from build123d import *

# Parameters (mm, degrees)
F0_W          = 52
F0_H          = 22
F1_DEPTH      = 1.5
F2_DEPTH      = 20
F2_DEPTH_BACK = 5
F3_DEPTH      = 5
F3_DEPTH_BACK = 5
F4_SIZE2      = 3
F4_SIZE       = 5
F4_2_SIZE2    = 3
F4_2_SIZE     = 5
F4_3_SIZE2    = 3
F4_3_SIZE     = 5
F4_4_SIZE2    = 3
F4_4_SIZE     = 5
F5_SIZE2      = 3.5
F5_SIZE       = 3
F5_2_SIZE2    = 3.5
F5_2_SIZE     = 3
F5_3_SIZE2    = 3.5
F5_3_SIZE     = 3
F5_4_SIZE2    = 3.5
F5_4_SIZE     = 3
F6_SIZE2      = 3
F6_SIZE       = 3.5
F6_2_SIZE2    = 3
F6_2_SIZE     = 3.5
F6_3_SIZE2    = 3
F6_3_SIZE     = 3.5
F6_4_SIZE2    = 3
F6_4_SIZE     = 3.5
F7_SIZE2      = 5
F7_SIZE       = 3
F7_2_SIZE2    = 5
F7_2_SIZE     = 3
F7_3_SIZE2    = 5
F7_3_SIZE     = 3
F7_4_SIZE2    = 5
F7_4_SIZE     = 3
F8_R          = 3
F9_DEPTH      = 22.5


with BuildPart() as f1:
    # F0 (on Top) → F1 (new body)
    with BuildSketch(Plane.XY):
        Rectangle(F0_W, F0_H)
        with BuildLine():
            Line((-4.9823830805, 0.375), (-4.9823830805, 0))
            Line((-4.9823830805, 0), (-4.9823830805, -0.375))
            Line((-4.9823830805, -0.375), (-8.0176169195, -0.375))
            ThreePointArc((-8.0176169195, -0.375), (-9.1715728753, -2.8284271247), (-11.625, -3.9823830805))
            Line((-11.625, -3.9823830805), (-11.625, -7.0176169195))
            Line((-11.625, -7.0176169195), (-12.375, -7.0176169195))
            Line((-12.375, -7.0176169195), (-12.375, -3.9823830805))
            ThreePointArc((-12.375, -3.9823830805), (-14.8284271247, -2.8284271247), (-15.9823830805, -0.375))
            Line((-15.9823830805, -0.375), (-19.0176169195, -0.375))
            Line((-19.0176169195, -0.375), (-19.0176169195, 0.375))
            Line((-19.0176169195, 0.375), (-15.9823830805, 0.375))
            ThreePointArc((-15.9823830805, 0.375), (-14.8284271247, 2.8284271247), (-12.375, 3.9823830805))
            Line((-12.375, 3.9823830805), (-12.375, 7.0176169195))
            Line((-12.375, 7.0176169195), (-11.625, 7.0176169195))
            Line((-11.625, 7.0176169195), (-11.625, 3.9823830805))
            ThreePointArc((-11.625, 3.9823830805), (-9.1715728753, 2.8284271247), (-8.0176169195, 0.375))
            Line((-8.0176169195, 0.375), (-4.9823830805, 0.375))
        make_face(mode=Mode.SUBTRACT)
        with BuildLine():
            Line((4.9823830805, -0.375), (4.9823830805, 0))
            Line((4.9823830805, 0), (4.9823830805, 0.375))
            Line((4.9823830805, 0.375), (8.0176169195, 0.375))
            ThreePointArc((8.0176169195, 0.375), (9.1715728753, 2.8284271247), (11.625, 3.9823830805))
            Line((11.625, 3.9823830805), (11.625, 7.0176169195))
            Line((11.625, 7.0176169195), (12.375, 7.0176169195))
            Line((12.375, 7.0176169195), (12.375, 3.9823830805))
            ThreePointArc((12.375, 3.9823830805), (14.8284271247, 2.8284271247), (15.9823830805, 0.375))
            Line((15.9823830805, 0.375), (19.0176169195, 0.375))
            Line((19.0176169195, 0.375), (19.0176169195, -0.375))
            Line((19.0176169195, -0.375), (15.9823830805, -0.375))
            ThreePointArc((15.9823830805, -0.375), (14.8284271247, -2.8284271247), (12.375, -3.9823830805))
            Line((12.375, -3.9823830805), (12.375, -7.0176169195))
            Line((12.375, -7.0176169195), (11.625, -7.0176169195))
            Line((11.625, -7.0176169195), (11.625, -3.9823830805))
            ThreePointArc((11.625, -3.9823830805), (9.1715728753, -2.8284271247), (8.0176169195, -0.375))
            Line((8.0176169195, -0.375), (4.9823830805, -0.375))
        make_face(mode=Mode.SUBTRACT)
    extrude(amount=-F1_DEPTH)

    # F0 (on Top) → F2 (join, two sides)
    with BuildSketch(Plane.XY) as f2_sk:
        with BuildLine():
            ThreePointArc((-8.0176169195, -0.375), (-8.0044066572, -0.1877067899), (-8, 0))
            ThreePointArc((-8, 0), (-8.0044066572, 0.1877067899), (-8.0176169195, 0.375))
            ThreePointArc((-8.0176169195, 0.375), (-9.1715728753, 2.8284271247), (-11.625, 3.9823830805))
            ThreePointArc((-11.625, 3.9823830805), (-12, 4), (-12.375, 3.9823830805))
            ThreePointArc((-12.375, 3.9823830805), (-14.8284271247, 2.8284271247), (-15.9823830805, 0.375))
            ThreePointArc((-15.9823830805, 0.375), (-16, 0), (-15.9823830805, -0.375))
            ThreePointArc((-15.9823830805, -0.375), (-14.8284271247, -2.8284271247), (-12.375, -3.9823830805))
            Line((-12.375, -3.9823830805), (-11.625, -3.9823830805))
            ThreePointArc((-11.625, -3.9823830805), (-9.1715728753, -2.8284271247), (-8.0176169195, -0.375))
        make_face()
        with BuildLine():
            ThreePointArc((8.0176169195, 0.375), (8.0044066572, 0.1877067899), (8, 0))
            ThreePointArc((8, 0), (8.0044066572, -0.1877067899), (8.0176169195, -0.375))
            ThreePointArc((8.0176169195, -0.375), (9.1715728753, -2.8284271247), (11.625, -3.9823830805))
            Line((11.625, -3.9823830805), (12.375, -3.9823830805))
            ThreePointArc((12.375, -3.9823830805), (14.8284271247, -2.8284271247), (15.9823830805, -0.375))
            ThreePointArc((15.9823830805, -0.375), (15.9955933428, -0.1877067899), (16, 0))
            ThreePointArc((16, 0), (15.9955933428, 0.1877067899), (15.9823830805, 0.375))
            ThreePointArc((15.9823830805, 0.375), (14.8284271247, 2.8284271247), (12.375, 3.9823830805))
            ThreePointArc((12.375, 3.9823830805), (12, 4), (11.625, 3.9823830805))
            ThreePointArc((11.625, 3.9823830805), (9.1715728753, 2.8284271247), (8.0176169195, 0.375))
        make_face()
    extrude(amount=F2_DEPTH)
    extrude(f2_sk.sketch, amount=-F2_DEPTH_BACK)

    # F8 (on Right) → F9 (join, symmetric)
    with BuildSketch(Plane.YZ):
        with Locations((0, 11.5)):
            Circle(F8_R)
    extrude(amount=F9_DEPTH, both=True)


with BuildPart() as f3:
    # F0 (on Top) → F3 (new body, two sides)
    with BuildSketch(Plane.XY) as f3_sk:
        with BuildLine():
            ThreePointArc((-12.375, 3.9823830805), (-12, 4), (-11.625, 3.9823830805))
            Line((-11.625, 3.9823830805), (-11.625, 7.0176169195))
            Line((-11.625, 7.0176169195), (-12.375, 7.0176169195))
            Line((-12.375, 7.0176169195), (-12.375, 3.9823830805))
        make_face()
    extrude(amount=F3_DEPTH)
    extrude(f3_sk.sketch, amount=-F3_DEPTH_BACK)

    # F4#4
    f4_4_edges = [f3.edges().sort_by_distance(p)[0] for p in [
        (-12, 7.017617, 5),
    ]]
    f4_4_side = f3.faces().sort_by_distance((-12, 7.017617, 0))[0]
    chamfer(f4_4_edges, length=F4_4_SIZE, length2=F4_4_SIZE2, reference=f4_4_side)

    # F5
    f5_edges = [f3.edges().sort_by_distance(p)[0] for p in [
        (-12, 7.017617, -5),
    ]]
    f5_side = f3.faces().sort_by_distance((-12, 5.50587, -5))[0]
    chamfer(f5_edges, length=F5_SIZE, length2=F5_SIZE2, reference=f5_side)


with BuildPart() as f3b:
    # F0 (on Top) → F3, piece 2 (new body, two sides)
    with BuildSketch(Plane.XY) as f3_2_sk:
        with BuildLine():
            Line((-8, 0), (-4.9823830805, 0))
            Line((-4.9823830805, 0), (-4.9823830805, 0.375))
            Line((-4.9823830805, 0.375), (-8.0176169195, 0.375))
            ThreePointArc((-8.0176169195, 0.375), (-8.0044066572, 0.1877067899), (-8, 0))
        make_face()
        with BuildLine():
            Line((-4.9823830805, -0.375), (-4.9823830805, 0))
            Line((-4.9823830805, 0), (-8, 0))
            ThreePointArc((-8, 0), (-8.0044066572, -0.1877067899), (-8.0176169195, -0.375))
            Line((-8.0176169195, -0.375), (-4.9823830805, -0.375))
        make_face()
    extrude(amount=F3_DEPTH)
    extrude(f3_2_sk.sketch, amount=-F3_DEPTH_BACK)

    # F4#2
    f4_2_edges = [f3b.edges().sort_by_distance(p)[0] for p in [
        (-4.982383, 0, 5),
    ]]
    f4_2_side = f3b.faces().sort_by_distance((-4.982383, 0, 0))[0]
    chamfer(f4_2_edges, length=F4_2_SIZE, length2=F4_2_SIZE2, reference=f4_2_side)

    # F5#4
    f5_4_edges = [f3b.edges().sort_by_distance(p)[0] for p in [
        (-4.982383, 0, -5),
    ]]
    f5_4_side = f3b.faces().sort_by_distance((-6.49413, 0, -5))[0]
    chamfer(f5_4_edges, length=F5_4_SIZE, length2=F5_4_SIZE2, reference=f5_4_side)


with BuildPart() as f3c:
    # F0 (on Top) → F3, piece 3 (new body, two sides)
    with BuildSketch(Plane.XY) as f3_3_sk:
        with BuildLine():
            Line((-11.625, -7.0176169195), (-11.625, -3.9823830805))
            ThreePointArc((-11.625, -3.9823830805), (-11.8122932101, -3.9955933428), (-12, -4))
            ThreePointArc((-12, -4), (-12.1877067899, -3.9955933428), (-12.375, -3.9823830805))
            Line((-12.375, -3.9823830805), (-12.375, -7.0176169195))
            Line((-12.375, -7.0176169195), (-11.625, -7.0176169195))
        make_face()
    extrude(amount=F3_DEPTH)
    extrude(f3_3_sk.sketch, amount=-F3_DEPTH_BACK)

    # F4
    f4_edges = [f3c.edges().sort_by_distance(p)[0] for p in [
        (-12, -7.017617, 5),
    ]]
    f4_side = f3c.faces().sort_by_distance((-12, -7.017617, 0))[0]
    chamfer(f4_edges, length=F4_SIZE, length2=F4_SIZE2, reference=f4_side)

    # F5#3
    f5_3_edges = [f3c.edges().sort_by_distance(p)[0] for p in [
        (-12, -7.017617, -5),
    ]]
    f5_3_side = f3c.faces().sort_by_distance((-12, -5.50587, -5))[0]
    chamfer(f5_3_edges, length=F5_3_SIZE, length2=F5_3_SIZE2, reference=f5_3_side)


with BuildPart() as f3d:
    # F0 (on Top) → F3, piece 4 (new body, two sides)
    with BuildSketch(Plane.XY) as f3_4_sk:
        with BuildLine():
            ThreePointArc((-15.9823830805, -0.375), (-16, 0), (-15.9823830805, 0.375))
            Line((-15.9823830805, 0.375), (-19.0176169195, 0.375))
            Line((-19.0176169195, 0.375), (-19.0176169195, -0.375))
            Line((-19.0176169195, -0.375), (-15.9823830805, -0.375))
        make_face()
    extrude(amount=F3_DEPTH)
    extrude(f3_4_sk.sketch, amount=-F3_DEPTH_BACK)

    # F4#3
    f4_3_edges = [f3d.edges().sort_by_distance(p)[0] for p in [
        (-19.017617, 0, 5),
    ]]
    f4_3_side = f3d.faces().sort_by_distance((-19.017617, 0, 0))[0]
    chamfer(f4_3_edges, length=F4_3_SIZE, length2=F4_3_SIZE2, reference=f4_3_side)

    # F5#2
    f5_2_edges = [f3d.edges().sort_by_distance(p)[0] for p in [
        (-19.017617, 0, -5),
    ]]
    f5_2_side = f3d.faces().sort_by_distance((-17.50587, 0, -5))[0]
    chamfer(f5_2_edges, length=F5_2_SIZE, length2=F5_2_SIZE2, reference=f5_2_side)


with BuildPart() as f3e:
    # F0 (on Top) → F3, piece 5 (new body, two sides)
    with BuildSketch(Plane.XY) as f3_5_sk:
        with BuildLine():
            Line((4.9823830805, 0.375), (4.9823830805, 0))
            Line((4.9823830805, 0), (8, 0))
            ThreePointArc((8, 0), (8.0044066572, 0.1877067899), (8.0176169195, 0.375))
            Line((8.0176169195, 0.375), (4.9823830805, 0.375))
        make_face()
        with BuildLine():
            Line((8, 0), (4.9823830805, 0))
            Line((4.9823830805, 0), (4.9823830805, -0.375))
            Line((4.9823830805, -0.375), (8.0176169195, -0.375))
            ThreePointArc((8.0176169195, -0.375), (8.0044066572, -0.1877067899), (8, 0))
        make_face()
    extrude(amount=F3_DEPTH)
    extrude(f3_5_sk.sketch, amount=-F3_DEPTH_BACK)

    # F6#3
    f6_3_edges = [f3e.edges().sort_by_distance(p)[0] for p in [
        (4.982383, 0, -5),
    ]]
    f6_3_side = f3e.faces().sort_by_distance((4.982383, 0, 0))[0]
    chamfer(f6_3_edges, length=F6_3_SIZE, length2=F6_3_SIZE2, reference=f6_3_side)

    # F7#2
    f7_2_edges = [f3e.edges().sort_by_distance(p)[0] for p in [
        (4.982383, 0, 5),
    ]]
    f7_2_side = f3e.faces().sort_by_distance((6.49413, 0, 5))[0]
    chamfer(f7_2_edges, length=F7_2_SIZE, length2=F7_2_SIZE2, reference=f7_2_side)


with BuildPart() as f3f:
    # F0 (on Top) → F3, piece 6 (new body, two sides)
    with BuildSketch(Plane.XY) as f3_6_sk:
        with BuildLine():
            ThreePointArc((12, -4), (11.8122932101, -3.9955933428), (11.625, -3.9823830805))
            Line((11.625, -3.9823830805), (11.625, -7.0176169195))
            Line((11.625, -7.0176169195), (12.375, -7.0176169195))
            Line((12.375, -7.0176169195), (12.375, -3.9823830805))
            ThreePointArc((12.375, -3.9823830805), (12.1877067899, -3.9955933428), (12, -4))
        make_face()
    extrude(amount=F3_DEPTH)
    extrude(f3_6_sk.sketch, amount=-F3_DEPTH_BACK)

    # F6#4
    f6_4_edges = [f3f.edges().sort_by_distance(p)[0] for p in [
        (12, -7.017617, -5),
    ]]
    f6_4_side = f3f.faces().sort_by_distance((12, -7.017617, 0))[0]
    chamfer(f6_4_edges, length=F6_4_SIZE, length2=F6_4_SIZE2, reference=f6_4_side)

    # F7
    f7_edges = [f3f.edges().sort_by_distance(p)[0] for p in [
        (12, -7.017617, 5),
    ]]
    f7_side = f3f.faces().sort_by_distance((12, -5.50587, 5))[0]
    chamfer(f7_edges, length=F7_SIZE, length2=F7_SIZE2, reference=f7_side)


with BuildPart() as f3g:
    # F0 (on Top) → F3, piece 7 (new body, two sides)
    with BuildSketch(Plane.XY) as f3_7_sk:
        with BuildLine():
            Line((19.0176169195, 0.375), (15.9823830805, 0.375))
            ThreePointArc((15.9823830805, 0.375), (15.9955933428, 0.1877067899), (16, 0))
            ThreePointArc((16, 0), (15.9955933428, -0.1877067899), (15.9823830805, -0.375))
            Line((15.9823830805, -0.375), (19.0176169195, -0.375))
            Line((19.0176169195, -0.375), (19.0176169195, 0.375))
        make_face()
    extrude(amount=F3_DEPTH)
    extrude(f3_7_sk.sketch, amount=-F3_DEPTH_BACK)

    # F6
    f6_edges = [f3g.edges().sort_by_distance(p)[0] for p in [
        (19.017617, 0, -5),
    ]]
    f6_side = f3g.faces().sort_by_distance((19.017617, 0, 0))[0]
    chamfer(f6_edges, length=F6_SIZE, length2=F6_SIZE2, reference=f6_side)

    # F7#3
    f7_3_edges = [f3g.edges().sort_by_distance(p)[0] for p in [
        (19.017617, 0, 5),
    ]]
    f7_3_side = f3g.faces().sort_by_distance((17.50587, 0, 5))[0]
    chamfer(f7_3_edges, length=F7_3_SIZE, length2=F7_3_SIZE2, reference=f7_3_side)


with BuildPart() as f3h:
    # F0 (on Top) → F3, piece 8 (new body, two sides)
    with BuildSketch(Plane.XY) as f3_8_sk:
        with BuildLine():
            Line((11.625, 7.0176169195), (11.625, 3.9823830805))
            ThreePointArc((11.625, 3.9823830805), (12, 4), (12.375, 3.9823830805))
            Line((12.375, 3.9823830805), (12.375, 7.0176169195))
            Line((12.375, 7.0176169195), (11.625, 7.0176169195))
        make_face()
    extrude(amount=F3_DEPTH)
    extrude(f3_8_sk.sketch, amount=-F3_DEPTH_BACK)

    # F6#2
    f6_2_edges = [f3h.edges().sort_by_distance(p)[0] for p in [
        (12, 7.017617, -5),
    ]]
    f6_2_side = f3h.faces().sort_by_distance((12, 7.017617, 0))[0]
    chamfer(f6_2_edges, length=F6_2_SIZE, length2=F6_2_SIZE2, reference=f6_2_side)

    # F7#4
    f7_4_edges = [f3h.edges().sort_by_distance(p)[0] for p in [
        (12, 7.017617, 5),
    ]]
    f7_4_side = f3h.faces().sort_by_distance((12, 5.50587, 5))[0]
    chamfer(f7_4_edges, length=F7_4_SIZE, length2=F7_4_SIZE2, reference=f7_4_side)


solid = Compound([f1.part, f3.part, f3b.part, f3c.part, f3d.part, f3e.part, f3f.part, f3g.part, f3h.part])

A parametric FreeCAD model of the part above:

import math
import FreeCAD as App
import Part
import Sketcher
from FreeCAD import Vector


def edges_at(feature, points):
    """Names of the edges that pass closest to the given points."""
    edges = feature.Shape.Edges
    near = lambda p: min(range(len(edges)), key=lambda i: edges[i].distToShape(Part.Vertex(*p))[0])
    return sorted({f"Edge{near(p) + 1}" for p in points})

doc = App.newDocument("Part")
params = doc.addObject("Spreadsheet::Sheet", "Params")
for row, (alias, value) in enumerate([
    ("sketch1_radius", "4 mm"),
    ("sketch1_width", "52 mm"),
    ("sketch1_height", "22 mm"),
    ("sketch1_width2", "0.75 mm"),
    ("pad1_length", "1.5 mm"),
    ("sketch2_radius", "4 mm"),
    ("sketch2_width", "0.75 mm"),
    ("pad2_length", "20 mm"),
    ("pad2_length2", "5 mm"),
    ("sketch3_diameter", "6 mm"),
    ("pad3_length", "45 mm"),
    ("sketch4_radius", "4 mm"),
    ("sketch4_width", "0.75 mm"),
    ("pad4_length", "5 mm"),
    ("pad4_length2", "5 mm"),
    ("chamfer_size", "5 mm"),
    ("chamfer_size2", "3 mm"),
    ("chamfer2_size", "3 mm"),
    ("chamfer2_size2", "3.5 mm"),
    ("sketch5_radius", "4 mm"),
    ("sketch5_height", "0.75 mm"),
    ("pad5_length", "5 mm"),
    ("pad5_length2", "5 mm"),
    ("chamfer3_size", "5 mm"),
    ("chamfer3_size2", "3 mm"),
    ("chamfer4_size", "3 mm"),
    ("chamfer4_size2", "3.5 mm"),
    ("sketch6_radius", "4 mm"),
    ("sketch6_width", "0.75 mm"),
    ("pad6_length", "5 mm"),
    ("pad6_length2", "5 mm"),
    ("chamfer5_size", "5 mm"),
    ("chamfer5_size2", "3 mm"),
    ("chamfer6_size", "3 mm"),
    ("chamfer6_size2", "3.5 mm"),
    ("sketch7_radius", "4 mm"),
    ("sketch7_height", "0.75 mm"),
    ("pad7_length", "5 mm"),
    ("pad7_length2", "5 mm"),
    ("chamfer7_size", "5 mm"),
    ("chamfer7_size2", "3 mm"),
    ("chamfer8_size", "3 mm"),
    ("chamfer8_size2", "3.5 mm"),
    ("sketch8_radius", "4 mm"),
    ("sketch8_height", "0.75 mm"),
    ("pad8_length", "5 mm"),
    ("pad8_length2", "5 mm"),
    ("chamfer9_size", "3.5 mm"),
    ("chamfer9_size2", "3 mm"),
    ("chamfer10_size", "3 mm"),
    ("chamfer10_size2", "5 mm"),
    ("sketch9_radius", "4 mm"),
    ("sketch9_width", "0.75 mm"),
    ("pad9_length", "5 mm"),
    ("pad9_length2", "5 mm"),
    ("chamfer11_size", "3.5 mm"),
    ("chamfer11_size2", "3 mm"),
    ("chamfer12_size", "3 mm"),
    ("chamfer12_size2", "5 mm"),
    ("sketch10_radius", "4 mm"),
    ("sketch10_height", "0.75 mm"),
    ("pad10_length", "5 mm"),
    ("pad10_length2", "5 mm"),
    ("chamfer13_size", "3.5 mm"),
    ("chamfer13_size2", "3 mm"),
    ("chamfer14_size", "3 mm"),
    ("chamfer14_size2", "5 mm"),
    ("sketch11_radius", "4 mm"),
    ("sketch11_width", "0.75 mm"),
    ("pad11_length", "5 mm"),
    ("pad11_length2", "5 mm"),
    ("chamfer15_size", "3.5 mm"),
    ("chamfer15_size2", "3 mm"),
    ("chamfer16_size", "3 mm"),
    ("chamfer16_size2", "5 mm"),
], start=1):
    params.set(f"A{row}", alias)
    params.set(f"B{row}", "=" + value)
    params.setAlias(f"B{row}", alias)

body = doc.addObject("PartDesign::Body", "Body")

# Sketch on XY plane
sketch1 = body.newObject("Sketcher::SketchObject", "Sketch")
sketch1.AttachmentSupport = (doc.getObject("XY_Plane"), [""])
sketch1.MapMode = "FlatFace"
sketch1.addGeometry([
    Part.LineSegment(Vector(-26, 11, 0), Vector(-26, -11, 0)),  # 0
    Part.LineSegment(Vector(-26, -11, 0), Vector(26, -11, 0)),  # 1
    Part.LineSegment(Vector(26, -11, 0), Vector(26, 11, 0)),  # 2
    Part.LineSegment(Vector(26, 11, 0), Vector(-26, 11, 0)),  # 3
    Part.LineSegment(Vector(-8, 0.4, 0), Vector(-5, 0.4, 0)),  # 4
    Part.LineSegment(Vector(-5, 0.4, 0), Vector(-5, -0.4, 0)),  # 5
    Part.LineSegment(Vector(-5, -0.4, 0), Vector(-8, -0.4, 0)),  # 6
    Part.ArcOfCircle(Part.Circle(Vector(-12, 0, 0), Vector(0, 0, 1), 4), math.radians(-85), math.radians(-5)),  # 7
    Part.LineSegment(Vector(-11.6, -4, 0), Vector(-11.6, -7, 0)),  # 8
    Part.LineSegment(Vector(-11.6, -7, 0), Vector(-12.4, -7, 0)),  # 9
    Part.LineSegment(Vector(-12.4, -7, 0), Vector(-12.4, -4, 0)),  # 10
    Part.ArcOfCircle(Part.Circle(Vector(-12, 0, 0), Vector(0, 0, 1), 4), math.radians(-175), math.radians(-95)),  # 11
    Part.LineSegment(Vector(-16, -0.4, 0), Vector(-19, -0.4, 0)),  # 12
    Part.LineSegment(Vector(-19, -0.4, 0), Vector(-19, 0.4, 0)),  # 13
    Part.LineSegment(Vector(-19, 0.4, 0), Vector(-16, 0.4, 0)),  # 14
    Part.ArcOfCircle(Part.Circle(Vector(-12, 0, 0), Vector(0, 0, 1), 4), math.radians(95), math.radians(175)),  # 15
    Part.LineSegment(Vector(-12.4, 4, 0), Vector(-12.4, 7, 0)),  # 16
    Part.LineSegment(Vector(-12.4, 7, 0), Vector(-11.6, 7, 0)),  # 17
    Part.LineSegment(Vector(-11.6, 7, 0), Vector(-11.6, 4, 0)),  # 18
    Part.ArcOfCircle(Part.Circle(Vector(-12, 0, 0), Vector(0, 0, 1), 4), math.radians(5), math.radians(85)),  # 19
    Part.LineSegment(Vector(8, -0.4, 0), Vector(5, -0.4, 0)),  # 20
    Part.LineSegment(Vector(5, -0.4, 0), Vector(5, 0.4, 0)),  # 21
    Part.LineSegment(Vector(5, 0.4, 0), Vector(8, 0.4, 0)),  # 22
    Part.ArcOfCircle(Part.Circle(Vector(12, 0, 0), Vector(0, 0, 1), 4), math.radians(95), math.radians(175)),  # 23
    Part.LineSegment(Vector(11.6, 4, 0), Vector(11.6, 7, 0)),  # 24
    Part.LineSegment(Vector(11.6, 7, 0), Vector(12.4, 7, 0)),  # 25
    Part.LineSegment(Vector(12.4, 7, 0), Vector(12.4, 4, 0)),  # 26
    Part.ArcOfCircle(Part.Circle(Vector(12, 0, 0), Vector(0, 0, 1), 4), math.radians(5), math.radians(85)),  # 27
    Part.LineSegment(Vector(16, 0.4, 0), Vector(19, 0.4, 0)),  # 28
    Part.LineSegment(Vector(19, 0.4, 0), Vector(19, -0.4, 0)),  # 29
    Part.LineSegment(Vector(19, -0.4, 0), Vector(16, -0.4, 0)),  # 30
    Part.ArcOfCircle(Part.Circle(Vector(12, 0, 0), Vector(0, 0, 1), 4), math.radians(-85), math.radians(-5)),  # 31
    Part.LineSegment(Vector(12.4, -4, 0), Vector(12.4, -7, 0)),  # 32
    Part.LineSegment(Vector(12.4, -7, 0), Vector(11.6, -7, 0)),  # 33
    Part.LineSegment(Vector(11.6, -7, 0), Vector(11.6, -4, 0)),  # 34
    Part.ArcOfCircle(Part.Circle(Vector(12, 0, 0), Vector(0, 0, 1), 4), math.radians(-175), math.radians(-95)),  # 35
], False)
sketch1.addConstraint([
    Sketcher.Constraint("Coincident", 0, 2, 1, 1),
    Sketcher.Constraint("Coincident", 1, 2, 2, 1),
    Sketcher.Constraint("Coincident", 2, 2, 3, 1),
    Sketcher.Constraint("Coincident", 3, 2, 0, 1),
    Sketcher.Constraint("Coincident", 4, 2, 5, 1),
    Sketcher.Constraint("Coincident", 5, 2, 6, 1),
    Sketcher.Constraint("Coincident", 6, 2, 7, 2),
    Sketcher.Constraint("Coincident", 7, 1, 8, 1),
    Sketcher.Constraint("Coincident", 8, 2, 9, 1),
    Sketcher.Constraint("Coincident", 9, 2, 10, 1),
    Sketcher.Constraint("Coincident", 10, 2, 11, 2),
    Sketcher.Constraint("Coincident", 11, 1, 12, 1),
    Sketcher.Constraint("Coincident", 12, 2, 13, 1),
    Sketcher.Constraint("Coincident", 13, 2, 14, 1),
    Sketcher.Constraint("Coincident", 14, 2, 15, 2),
    Sketcher.Constraint("Coincident", 15, 1, 16, 1),
    Sketcher.Constraint("Coincident", 16, 2, 17, 1),
    Sketcher.Constraint("Coincident", 17, 2, 18, 1),
    Sketcher.Constraint("Coincident", 18, 2, 19, 2),
    Sketcher.Constraint("Coincident", 19, 1, 4, 1),
    Sketcher.Constraint("Coincident", 20, 2, 21, 1),
    Sketcher.Constraint("Coincident", 21, 2, 22, 1),
    Sketcher.Constraint("Coincident", 22, 2, 23, 2),
    Sketcher.Constraint("Coincident", 23, 1, 24, 1),
    Sketcher.Constraint("Coincident", 24, 2, 25, 1),
    Sketcher.Constraint("Coincident", 25, 2, 26, 1),
    Sketcher.Constraint("Coincident", 26, 2, 27, 2),
    Sketcher.Constraint("Coincident", 27, 1, 28, 1),
    Sketcher.Constraint("Coincident", 28, 2, 29, 1),
    Sketcher.Constraint("Coincident", 29, 2, 30, 1),
    Sketcher.Constraint("Coincident", 30, 2, 31, 2),
    Sketcher.Constraint("Coincident", 31, 1, 32, 1),
    Sketcher.Constraint("Coincident", 32, 2, 33, 1),
    Sketcher.Constraint("Coincident", 33, 2, 34, 1),
    Sketcher.Constraint("Coincident", 34, 2, 35, 2),
    Sketcher.Constraint("Coincident", 35, 1, 20, 1),
    Sketcher.Constraint("Vertical", 0),
    Sketcher.Constraint("Horizontal", 1),
    Sketcher.Constraint("Vertical", 2),
    Sketcher.Constraint("Horizontal", 3),
    Sketcher.Constraint("Horizontal", 4),
    Sketcher.Constraint("Vertical", 5),
    Sketcher.Constraint("Horizontal", 6),
    Sketcher.Constraint("Vertical", 8),
    Sketcher.Constraint("Horizontal", 9),
    Sketcher.Constraint("Vertical", 10),
    Sketcher.Constraint("Horizontal", 12),
    Sketcher.Constraint("Vertical", 13),
    Sketcher.Constraint("Horizontal", 14),
    Sketcher.Constraint("Vertical", 16),
    Sketcher.Constraint("Horizontal", 17),
    Sketcher.Constraint("Vertical", 18),
    Sketcher.Constraint("Horizontal", 20),
    Sketcher.Constraint("Vertical", 21),
    Sketcher.Constraint("Horizontal", 22),
    Sketcher.Constraint("Vertical", 24),
    Sketcher.Constraint("Horizontal", 25),
    Sketcher.Constraint("Vertical", 26),
    Sketcher.Constraint("Horizontal", 28),
    Sketcher.Constraint("Vertical", 29),
    Sketcher.Constraint("Horizontal", 30),
    Sketcher.Constraint("Vertical", 32),
    Sketcher.Constraint("Horizontal", 33),
    Sketcher.Constraint("Vertical", 34),
    Sketcher.Constraint("Coincident", 11, 3, 7, 3),
    Sketcher.Constraint("Coincident", 15, 3, 7, 3),
    Sketcher.Constraint("Coincident", 19, 3, 7, 3),
    Sketcher.Constraint("Coincident", 27, 3, 23, 3),
    Sketcher.Constraint("Coincident", 31, 3, 23, 3),
    Sketcher.Constraint("Coincident", 35, 3, 23, 3),
    Sketcher.Constraint("Equal", 7, 11),
    Sketcher.Constraint("Equal", 11, 15),
    Sketcher.Constraint("Equal", 15, 19),
    Sketcher.Constraint("Equal", 19, 23),
    Sketcher.Constraint("Equal", 23, 27),
    Sketcher.Constraint("Equal", 27, 31),
    Sketcher.Constraint("Equal", 31, 35),
    Sketcher.Constraint("Symmetric", 7, 3, 23, 3, -1, 1),
    Sketcher.Constraint("Symmetric", 0, 2, 2, 2, -1, 1),
    Sketcher.Constraint("Symmetric", 4, 2, 20, 2, -1, 1),
    Sketcher.Constraint("Symmetric", 8, 2, 24, 2, -1, 1),
    Sketcher.Constraint("Symmetric", 12, 2, 28, 2, -1, 1),
    Sketcher.Constraint("Symmetric", 16, 2, 32, 2, -1, 1),
    Sketcher.Constraint("Symmetric", 19, 1, 22, 2, -2),
    Sketcher.Constraint("Symmetric", 17, 2, 24, 2, -2),
    Sketcher.Constraint("Horizontal", 7, 1, 10, 2),
    Sketcher.Constraint("Horizontal", 6, 2, 11, 1),
    Sketcher.Constraint("Horizontal", 4, 2, 13, 2),
    Sketcher.Constraint("Horizontal", 15, 1, 18, 2),
    Sketcher.Constraint("Horizontal", 12, 2, 20, 2),
    Sketcher.Constraint("Horizontal", 23, 1, 26, 2),
    Sketcher.Constraint("Horizontal", 20, 2, 29, 2),
    Sketcher.Constraint("Horizontal", 31, 1, 34, 2),
    Sketcher.Constraint("Equal", 6, 12),
    Sketcher.Constraint("Equal", 33, 5),
    Sketcher.Constraint("Equal", 30, 8),
    Sketcher.Constraint("Radius", 7, 4.0),
    Sketcher.Constraint("DistanceX", 1, 1, 1, 2, 52.0),
    Sketcher.Constraint("DistanceY", 0, 2, 0, 1, 22.0),
    Sketcher.Constraint("DistanceX", 7, 3, -1, 1, 12.0),
    Sketcher.Constraint("DistanceX", 9, 2, 9, 1, 0.75),
    Sketcher.Constraint("DistanceX", 4, 1, 4, 2, 3.035234),
])
sketch1.setExpression("Constraints[96]", "Params.sketch1_radius")
sketch1.setExpression("Constraints[97]", "Params.sketch1_width")
sketch1.setExpression("Constraints[98]", "Params.sketch1_height")
sketch1.setExpression("Constraints[100]", "Params.sketch1_width2")
pad1 = body.newObject("PartDesign::Pad", "Pad")
pad1.Profile = sketch1
pad1.setExpression("Length", "Params.pad1_length")
pad1.Reversed = True

# Sketch on XY plane
sketch2 = body.newObject("Sketcher::SketchObject", "Sketch001")
sketch2.AttachmentSupport = (doc.getObject("XY_Plane"), [""])
sketch2.MapMode = "FlatFace"
sketch2.addGeometry([
    Part.ArcOfCircle(Part.Circle(Vector(-12, 0, 0), Vector(0, 0, 1), 4), math.radians(-5.38), math.radians(0)),  # 0
    Part.ArcOfCircle(Part.Circle(Vector(-12, 0, 0), Vector(0, 0, 1), 4), math.radians(0), math.radians(5.38)),  # 1
    Part.ArcOfCircle(Part.Circle(Vector(-12, 0, 0), Vector(0, 0, 1), 4), math.radians(5), math.radians(85)),  # 2
    Part.ArcOfCircle(Part.Circle(Vector(-12, 0, 0), Vector(0, 0, 1), 4), math.radians(84.62), math.radians(95.38)),  # 3
    Part.ArcOfCircle(Part.Circle(Vector(-12, 0, 0), Vector(0, 0, 1), 4), math.radians(95), math.radians(175)),  # 4
    Part.ArcOfCircle(Part.Circle(Vector(-12, 0, 0), Vector(0, 0, 1), 4), math.radians(174.62), math.radians(185.38)),  # 5
    Part.ArcOfCircle(Part.Circle(Vector(-12, 0, 0), Vector(0, 0, 1), 4), math.radians(-175), math.radians(-95)),  # 6
    Part.LineSegment(Vector(-12.38, -3.98, 0), Vector(-11.62, -3.98, 0)),  # 7
    Part.ArcOfCircle(Part.Circle(Vector(-12, 0, 0), Vector(0, 0, 1), 4), math.radians(-85), math.radians(-5)),  # 8
    Part.ArcOfCircle(Part.Circle(Vector(12, 0, 0), Vector(0, 0, 1), 4), math.radians(174.62), math.radians(180)),  # 9
    Part.ArcOfCircle(Part.Circle(Vector(12, 0, 0), Vector(0, 0, 1), 4), math.radians(180), math.radians(185.38)),  # 10
    Part.ArcOfCircle(Part.Circle(Vector(12, 0, 0), Vector(0, 0, 1), 4), math.radians(-175), math.radians(-95)),  # 11
    Part.LineSegment(Vector(11.62, -3.98, 0), Vector(12.38, -3.98, 0)),  # 12
    Part.ArcOfCircle(Part.Circle(Vector(12, 0, 0), Vector(0, 0, 1), 4), math.radians(-85), math.radians(-5)),  # 13
    Part.ArcOfCircle(Part.Circle(Vector(12, 0, 0), Vector(0, 0, 1), 4), math.radians(-5.38), math.radians(0)),  # 14
    Part.ArcOfCircle(Part.Circle(Vector(12, 0, 0), Vector(0, 0, 1), 4), math.radians(0), math.radians(5.38)),  # 15
    Part.ArcOfCircle(Part.Circle(Vector(12, 0, 0), Vector(0, 0, 1), 4), math.radians(5), math.radians(85)),  # 16
    Part.ArcOfCircle(Part.Circle(Vector(12, 0, 0), Vector(0, 0, 1), 4), math.radians(84.62), math.radians(95.38)),  # 17
    Part.ArcOfCircle(Part.Circle(Vector(12, 0, 0), Vector(0, 0, 1), 4), math.radians(95), math.radians(175)),  # 18
], False)
sketch2.addConstraint([
    Sketcher.Constraint("Tangent", 0, 2, 1, 1),
    Sketcher.Constraint("Tangent", 1, 2, 2, 1),
    Sketcher.Constraint("Tangent", 2, 2, 3, 1),
    Sketcher.Constraint("Tangent", 3, 2, 4, 1),
    Sketcher.Constraint("Tangent", 4, 2, 5, 1),
    Sketcher.Constraint("Tangent", 5, 2, 6, 1),
    Sketcher.Constraint("Coincident", 6, 2, 7, 1),
    Sketcher.Constraint("Coincident", 7, 2, 8, 1),
    Sketcher.Constraint("Tangent", 8, 2, 0, 1),
    Sketcher.Constraint("Tangent", 9, 2, 10, 1),
    Sketcher.Constraint("Tangent", 10, 2, 11, 1),
    Sketcher.Constraint("Coincident", 11, 2, 12, 1),
    Sketcher.Constraint("Coincident", 12, 2, 13, 1),
    Sketcher.Constraint("Tangent", 13, 2, 14, 1),
    Sketcher.Constraint("Tangent", 14, 2, 15, 1),
    Sketcher.Constraint("Tangent", 15, 2, 16, 1),
    Sketcher.Constraint("Tangent", 16, 2, 17, 1),
    Sketcher.Constraint("Tangent", 17, 2, 18, 1),
    Sketcher.Constraint("Tangent", 18, 2, 9, 1),
    Sketcher.Constraint("Horizontal", 7),
    Sketcher.Constraint("Horizontal", 12),
    Sketcher.Constraint("Coincident", 2, 3, 0, 3),
    Sketcher.Constraint("Coincident", 4, 3, 0, 3),
    Sketcher.Constraint("Coincident", 6, 3, 0, 3),
    Sketcher.Constraint("Coincident", 11, 3, 9, 3),
    Sketcher.Constraint("Coincident", 13, 3, 9, 3),
    Sketcher.Constraint("Coincident", 15, 3, 9, 3),
    Sketcher.Constraint("Coincident", 17, 3, 9, 3),
    Sketcher.Constraint("Equal", 6, 8),
    Sketcher.Constraint("Equal", 8, 9),
    Sketcher.Constraint("Symmetric", 0, 3, 9, 3, -1, 1),
    Sketcher.Constraint("Symmetric", 8, 2, 10, 2, -2),
    Sketcher.Constraint("PointOnObject", 0, 2, -1),
    Sketcher.Constraint("PointOnObject", 9, 2, -1),
    Sketcher.Constraint("PointOnObject", 14, 2, -1),
    Sketcher.Constraint("Horizontal", 2, 2, 3, 2),
    Sketcher.Constraint("Horizontal", 1, 2, 4, 2),
    Sketcher.Constraint("Horizontal", 5, 2, 8, 2),
    Sketcher.Constraint("Horizontal", 7, 2, 11, 2),
    Sketcher.Constraint("Horizontal", 10, 2, 13, 2),
    Sketcher.Constraint("Horizontal", 4, 2, 15, 2),
    Sketcher.Constraint("Horizontal", 3, 2, 16, 2),
    Sketcher.Constraint("Horizontal", 16, 2, 17, 2),
    Sketcher.Constraint("Horizontal", 15, 2, 18, 2),
    Sketcher.Constraint("Vertical", 4, 2, 5, 2),
    Sketcher.Constraint("Vertical", 3, 2, 6, 2),
    Sketcher.Constraint("Radius", 0, 4.0),
    Sketcher.Constraint("DistanceX", 0, 3, -1, 1, 12.0),
    Sketcher.Constraint("DistanceX", 7, 1, 7, 2, 0.75),
    Sketcher.Constraint("DistanceY", 5, 2, 4, 2, 0.75),
])
sketch2.setExpression("Constraints[46]", "Params.sketch2_radius")
sketch2.setExpression("Constraints[48]", "Params.sketch2_width")
pad2 = body.newObject("PartDesign::Pad", "Pad001")
pad2.Profile = sketch2
pad2.Type = "TwoLengths"
pad2.setExpression("Length", "Params.pad2_length")
pad2.setExpression("Length2", "Params.pad2_length2")

# Sketch on YZ plane
sketch3 = body.newObject("Sketcher::SketchObject", "Sketch002")
sketch3.AttachmentSupport = (doc.getObject("YZ_Plane"), [""])
sketch3.MapMode = "FlatFace"
sketch3.addGeometry(Part.Circle(Vector(0, 11.5, 0), Vector(0, 0, 1), 3), False)
sketch3.addConstraint([
    Sketcher.Constraint("PointOnObject", 0, 3, -2),
    Sketcher.Constraint("Diameter", 0, 6.0),
    Sketcher.Constraint("DistanceY", -1, 1, 0, 3, 11.5),
])
sketch3.setExpression("Constraints[1]", "Params.sketch3_diameter")
pad3 = body.newObject("PartDesign::Pad", "Pad002")
pad3.Profile = sketch3
pad3.setExpression("Length", "Params.pad3_length")
pad3.Midplane = True
body2 = doc.addObject("PartDesign::Body", "Body001")

# Sketch on XY plane
sketch4 = body2.newObject("Sketcher::SketchObject", "Sketch003")
sketch4.AttachmentSupport = (doc.getObject("XY_Plane001"), [""])
sketch4.MapMode = "FlatFace"
sketch4.addGeometry([
    Part.ArcOfCircle(Part.Circle(Vector(-12, 0, 0), Vector(0, 0, 1), 4), math.radians(84.62), math.radians(95.38)),
    Part.LineSegment(Vector(-11.6, 4, 0), Vector(-11.6, 7, 0)),
    Part.LineSegment(Vector(-11.6, 7, 0), Vector(-12.4, 7, 0)),
    Part.LineSegment(Vector(-12.4, 7, 0), Vector(-12.4, 4, 0)),
], False)
sketch4.addConstraint([
    Sketcher.Constraint("Coincident", 0, 1, 1, 1),
    Sketcher.Constraint("Coincident", 1, 2, 2, 1),
    Sketcher.Constraint("Coincident", 2, 2, 3, 1),
    Sketcher.Constraint("Coincident", 3, 2, 0, 2),
    Sketcher.Constraint("Vertical", 1),
    Sketcher.Constraint("Horizontal", 2),
    Sketcher.Constraint("Vertical", 3),
    Sketcher.Constraint("PointOnObject", 0, 3, -1),
    Sketcher.Constraint("Horizontal", 0, 1, 3, 2),
    Sketcher.Constraint("Radius", 0, 4.0),
    Sketcher.Constraint("DistanceX", 0, 3, -1, 1, 12.0),
    Sketcher.Constraint("DistanceX", 2, 2, 2, 1, 0.75),
    Sketcher.Constraint("DistanceY", 1, 1, 1, 2, 3.035234),
])
sketch4.setExpression("Constraints[9]", "Params.sketch4_radius")
sketch4.setExpression("Constraints[11]", "Params.sketch4_width")
pad4 = body2.newObject("PartDesign::Pad", "Pad003")
pad4.Profile = sketch4
pad4.Type = "TwoLengths"
pad4.setExpression("Length", "Params.pad4_length")
pad4.setExpression("Length2", "Params.pad4_length2")
doc.recompute()

chamfer = body2.newObject("PartDesign::Chamfer", "Chamfer")
chamfer.Base = (pad4, edges_at(pad4, [(-12, 7.018, 5)]))
chamfer.ChamferType = "Two distances"
chamfer.setExpression("Size", "Params.chamfer_size")
chamfer.setExpression("Size2", "Params.chamfer_size2")
doc.recompute()

chamfer2 = body2.newObject("PartDesign::Chamfer", "Chamfer001")
chamfer2.Base = (chamfer, edges_at(chamfer, [(-12, 7.018, -5)]))
chamfer2.ChamferType = "Two distances"
chamfer2.setExpression("Size", "Params.chamfer2_size")
chamfer2.setExpression("Size2", "Params.chamfer2_size2")
chamfer2.FlipDirection = True
body3 = doc.addObject("PartDesign::Body", "Body002")

# Sketch on XY plane
sketch5 = body3.newObject("Sketcher::SketchObject", "Sketch004")
sketch5.AttachmentSupport = (doc.getObject("XY_Plane002"), [""])
sketch5.MapMode = "FlatFace"
sketch5.addGeometry([
    Part.LineSegment(Vector(-4.98, 0.38, 0), Vector(-8.02, 0.38, 0)),  # 0
    Part.ArcOfCircle(Part.Circle(Vector(-12, 0, 0), Vector(0, 0, 1), 4), math.radians(0), math.radians(5.38)),  # 1
    Part.ArcOfCircle(Part.Circle(Vector(-12, 0, 0), Vector(0, 0, 1), 4), math.radians(-5.38), math.radians(0)),  # 2
    Part.LineSegment(Vector(-8.02, -0.38, 0), Vector(-4.98, -0.38, 0)),  # 3
    Part.LineSegment(Vector(-4.98, -0.38, 0), Vector(-4.98, 0.38, 0)),  # 4
], False)
sketch5.addConstraint([
    Sketcher.Constraint("Coincident", 0, 2, 1, 2),
    Sketcher.Constraint("Tangent", 1, 1, 2, 2),
    Sketcher.Constraint("Coincident", 2, 1, 3, 1),
    Sketcher.Constraint("Coincident", 3, 2, 4, 1),
    Sketcher.Constraint("Coincident", 4, 2, 0, 1),
    Sketcher.Constraint("Horizontal", 0),
    Sketcher.Constraint("Horizontal", 3),
    Sketcher.Constraint("Vertical", 4),
    Sketcher.Constraint("Equal", 1, 2),
    Sketcher.Constraint("Symmetric", 0, 2, 2, 1, -1),
    Sketcher.Constraint("PointOnObject", 1, 1, -1),
    Sketcher.Constraint("Radius", 1, 4.0),
    Sketcher.Constraint("DistanceX", 1, 3, -1, 1, 12.0),
    Sketcher.Constraint("DistanceY", 4, 1, 4, 2, 0.75),
    Sketcher.Constraint("DistanceX", 0, 2, 0, 1, 3.035234),
])
sketch5.setExpression("Constraints[11]", "Params.sketch5_radius")
sketch5.setExpression("Constraints[13]", "Params.sketch5_height")
pad5 = body3.newObject("PartDesign::Pad", "Pad004")
pad5.Profile = sketch5
pad5.Type = "TwoLengths"
pad5.setExpression("Length", "Params.pad5_length")
pad5.setExpression("Length2", "Params.pad5_length2")
doc.recompute()

chamfer3 = body3.newObject("PartDesign::Chamfer", "Chamfer002")
chamfer3.Base = (pad5, edges_at(pad5, [(-4.982, 0, 5)]))
chamfer3.ChamferType = "Two distances"
chamfer3.setExpression("Size", "Params.chamfer3_size")
chamfer3.setExpression("Size2", "Params.chamfer3_size2")
doc.recompute()

chamfer4 = body3.newObject("PartDesign::Chamfer", "Chamfer003")
chamfer4.Base = (chamfer3, edges_at(chamfer3, [(-4.982, 0, -5)]))
chamfer4.ChamferType = "Two distances"
chamfer4.setExpression("Size", "Params.chamfer4_size")
chamfer4.setExpression("Size2", "Params.chamfer4_size2")
chamfer4.FlipDirection = True
body4 = doc.addObject("PartDesign::Body", "Body003")

# Sketch on XY plane
sketch6 = body4.newObject("Sketcher::SketchObject", "Sketch005")
sketch6.AttachmentSupport = (doc.getObject("XY_Plane003"), [""])
sketch6.MapMode = "FlatFace"
sketch6.addGeometry([
    Part.LineSegment(Vector(-11.62, -7.02, 0), Vector(-11.62, -3.98, 0)),  # 0
    Part.ArcOfCircle(Part.Circle(Vector(-12, 0, 0), Vector(0, 0, 1), 4), math.radians(-90), math.radians(-84.62)),  # 1
    Part.ArcOfCircle(Part.Circle(Vector(-12, 0, 0), Vector(0, 0, 1), 4), math.radians(-95.38), math.radians(-90)),  # 2
    Part.LineSegment(Vector(-12.38, -3.98, 0), Vector(-12.38, -7.02, 0)),  # 3
    Part.LineSegment(Vector(-12.38, -7.02, 0), Vector(-11.62, -7.02, 0)),  # 4
], False)
sketch6.addConstraint([
    Sketcher.Constraint("Coincident", 0, 2, 1, 2),
    Sketcher.Constraint("Tangent", 1, 1, 2, 2),
    Sketcher.Constraint("Coincident", 2, 1, 3, 1),
    Sketcher.Constraint("Coincident", 3, 2, 4, 1),
    Sketcher.Constraint("Coincident", 4, 2, 0, 1),
    Sketcher.Constraint("Vertical", 0),
    Sketcher.Constraint("Vertical", 3),
    Sketcher.Constraint("Horizontal", 4),
    Sketcher.Constraint("Equal", 1, 2),
    Sketcher.Constraint("PointOnObject", 1, 3, -1),
    Sketcher.Constraint("Horizontal", 0, 2, 2, 1),
    Sketcher.Constraint("Vertical", 2, 3, 1, 1),
    Sketcher.Constraint("Radius", 1, 4.0),
    Sketcher.Constraint("DistanceX", 1, 3, -1, 1, 12.0),
    Sketcher.Constraint("DistanceX", 4, 1, 4, 2, 0.75),
    Sketcher.Constraint("DistanceY", 0, 1, 0, 2, 3.035234),
])
sketch6.setExpression("Constraints[12]", "Params.sketch6_radius")
sketch6.setExpression("Constraints[14]", "Params.sketch6_width")
pad6 = body4.newObject("PartDesign::Pad", "Pad005")
pad6.Profile = sketch6
pad6.Type = "TwoLengths"
pad6.setExpression("Length", "Params.pad6_length")
pad6.setExpression("Length2", "Params.pad6_length2")
doc.recompute()

chamfer5 = body4.newObject("PartDesign::Chamfer", "Chamfer004")
chamfer5.Base = (pad6, edges_at(pad6, [(-12, -7.018, 5)]))
chamfer5.ChamferType = "Two distances"
chamfer5.setExpression("Size", "Params.chamfer5_size")
chamfer5.setExpression("Size2", "Params.chamfer5_size2")
doc.recompute()

chamfer6 = body4.newObject("PartDesign::Chamfer", "Chamfer005")
chamfer6.Base = (chamfer5, edges_at(chamfer5, [(-12, -7.018, -5)]))
chamfer6.ChamferType = "Two distances"
chamfer6.setExpression("Size", "Params.chamfer6_size")
chamfer6.setExpression("Size2", "Params.chamfer6_size2")
chamfer6.FlipDirection = True
body5 = doc.addObject("PartDesign::Body", "Body004")

# Sketch on XY plane
sketch7 = body5.newObject("Sketcher::SketchObject", "Sketch006")
sketch7.AttachmentSupport = (doc.getObject("XY_Plane004"), [""])
sketch7.MapMode = "FlatFace"
sketch7.addGeometry([
    Part.ArcOfCircle(Part.Circle(Vector(-12, 0, 0), Vector(0, 0, 1), 4), math.radians(174.62), math.radians(185.38)),
    Part.LineSegment(Vector(-16, 0.4, 0), Vector(-19, 0.4, 0)),
    Part.LineSegment(Vector(-19, 0.4, 0), Vector(-19, -0.4, 0)),
    Part.LineSegment(Vector(-19, -0.4, 0), Vector(-16, -0.4, 0)),
], False)
sketch7.addConstraint([
    Sketcher.Constraint("Coincident", 0, 1, 1, 1),
    Sketcher.Constraint("Coincident", 1, 2, 2, 1),
    Sketcher.Constraint("Coincident", 2, 2, 3, 1),
    Sketcher.Constraint("Coincident", 3, 2, 0, 2),
    Sketcher.Constraint("Horizontal", 1),
    Sketcher.Constraint("Vertical", 2),
    Sketcher.Constraint("Horizontal", 3),
    Sketcher.Constraint("Symmetric", 0, 1, 3, 2, -1),
    Sketcher.Constraint("Radius", 0, 4.0),
    Sketcher.Constraint("DistanceX", 0, 3, -1, 1, 12.0),
    Sketcher.Constraint("DistanceY", 2, 2, 2, 1, 0.75),
    Sketcher.Constraint("DistanceX", 1, 2, 1, 1, 3.035234),
])
sketch7.setExpression("Constraints[8]", "Params.sketch7_radius")
sketch7.setExpression("Constraints[10]", "Params.sketch7_height")
pad7 = body5.newObject("PartDesign::Pad", "Pad006")
pad7.Profile = sketch7
pad7.Type = "TwoLengths"
pad7.setExpression("Length", "Params.pad7_length")
pad7.setExpression("Length2", "Params.pad7_length2")
doc.recompute()

chamfer7 = body5.newObject("PartDesign::Chamfer", "Chamfer006")
chamfer7.Base = (pad7, edges_at(pad7, [(-19.018, 0, 5)]))
chamfer7.ChamferType = "Two distances"
chamfer7.setExpression("Size", "Params.chamfer7_size")
chamfer7.setExpression("Size2", "Params.chamfer7_size2")
doc.recompute()

chamfer8 = body5.newObject("PartDesign::Chamfer", "Chamfer007")
chamfer8.Base = (chamfer7, edges_at(chamfer7, [(-19.018, 0, -5)]))
chamfer8.ChamferType = "Two distances"
chamfer8.setExpression("Size", "Params.chamfer8_size")
chamfer8.setExpression("Size2", "Params.chamfer8_size2")
chamfer8.FlipDirection = True
body6 = doc.addObject("PartDesign::Body", "Body005")

# Sketch on XY plane
sketch8 = body6.newObject("Sketcher::SketchObject", "Sketch007")
sketch8.AttachmentSupport = (doc.getObject("XY_Plane005"), [""])
sketch8.MapMode = "FlatFace"
sketch8.addGeometry([
    Part.LineSegment(Vector(4.98, 0.38, 0), Vector(4.98, -0.38, 0)),  # 0
    Part.LineSegment(Vector(4.98, -0.38, 0), Vector(8.02, -0.38, 0)),  # 1
    Part.ArcOfCircle(Part.Circle(Vector(12, 0, 0), Vector(0, 0, 1), 4), math.radians(180), math.radians(185.38)),  # 2
    Part.ArcOfCircle(Part.Circle(Vector(12, 0, 0), Vector(0, 0, 1), 4), math.radians(174.62), math.radians(180)),  # 3
    Part.LineSegment(Vector(8.02, 0.38, 0), Vector(4.98, 0.38, 0)),  # 4
], False)
sketch8.addConstraint([
    Sketcher.Constraint("Coincident", 0, 2, 1, 1),
    Sketcher.Constraint("Coincident", 1, 2, 2, 2),
    Sketcher.Constraint("Tangent", 2, 1, 3, 2),
    Sketcher.Constraint("Coincident", 3, 1, 4, 1),
    Sketcher.Constraint("Coincident", 4, 2, 0, 1),
    Sketcher.Constraint("Vertical", 0),
    Sketcher.Constraint("Horizontal", 1),
    Sketcher.Constraint("Horizontal", 4),
    Sketcher.Constraint("Equal", 2, 3),
    Sketcher.Constraint("Symmetric", 1, 2, 3, 1, -1),
    Sketcher.Constraint("PointOnObject", 2, 1, -1),
    Sketcher.Constraint("Radius", 2, 4.0),
    Sketcher.Constraint("DistanceX", -1, 1, 2, 3, 12.0),
    Sketcher.Constraint("DistanceY", 0, 2, 0, 1, 0.75),
    Sketcher.Constraint("DistanceX", 1, 1, 1, 2, 3.035234),
])
sketch8.setExpression("Constraints[11]", "Params.sketch8_radius")
sketch8.setExpression("Constraints[13]", "Params.sketch8_height")
pad8 = body6.newObject("PartDesign::Pad", "Pad007")
pad8.Profile = sketch8
pad8.Type = "TwoLengths"
pad8.setExpression("Length", "Params.pad8_length")
pad8.setExpression("Length2", "Params.pad8_length2")
doc.recompute()

chamfer9 = body6.newObject("PartDesign::Chamfer", "Chamfer008")
chamfer9.Base = (pad8, edges_at(pad8, [(4.982, 0, -5)]))
chamfer9.ChamferType = "Two distances"
chamfer9.setExpression("Size", "Params.chamfer9_size")
chamfer9.setExpression("Size2", "Params.chamfer9_size2")
doc.recompute()

chamfer10 = body6.newObject("PartDesign::Chamfer", "Chamfer009")
chamfer10.Base = (chamfer9, edges_at(chamfer9, [(4.982, 0, 5)]))
chamfer10.ChamferType = "Two distances"
chamfer10.setExpression("Size", "Params.chamfer10_size")
chamfer10.setExpression("Size2", "Params.chamfer10_size2")
chamfer10.FlipDirection = True
body7 = doc.addObject("PartDesign::Body", "Body006")

# Sketch on XY plane
sketch9 = body7.newObject("Sketcher::SketchObject", "Sketch008")
sketch9.AttachmentSupport = (doc.getObject("XY_Plane006"), [""])
sketch9.MapMode = "FlatFace"
sketch9.addGeometry([
    Part.ArcOfCircle(Part.Circle(Vector(12, 0, 0), Vector(0, 0, 1), 4), math.radians(-95.38), math.radians(-90)),  # 0
    Part.LineSegment(Vector(11.62, -3.98, 0), Vector(11.62, -7.02, 0)),  # 1
    Part.LineSegment(Vector(11.62, -7.02, 0), Vector(12.38, -7.02, 0)),  # 2
    Part.LineSegment(Vector(12.38, -7.02, 0), Vector(12.38, -3.98, 0)),  # 3
    Part.ArcOfCircle(Part.Circle(Vector(12, 0, 0), Vector(0, 0, 1), 4), math.radians(-90), math.radians(-84.62)),  # 4
], False)
sketch9.addConstraint([
    Sketcher.Constraint("Coincident", 0, 1, 1, 1),
    Sketcher.Constraint("Coincident", 1, 2, 2, 1),
    Sketcher.Constraint("Coincident", 2, 2, 3, 1),
    Sketcher.Constraint("Coincident", 3, 2, 4, 2),
    Sketcher.Constraint("Tangent", 4, 1, 0, 2),
    Sketcher.Constraint("Vertical", 1),
    Sketcher.Constraint("Horizontal", 2),
    Sketcher.Constraint("Vertical", 3),
    Sketcher.Constraint("Equal", 0, 4),
    Sketcher.Constraint("PointOnObject", 0, 3, -1),
    Sketcher.Constraint("Horizontal", 0, 1, 3, 2),
    Sketcher.Constraint("Vertical", 0, 3, 4, 1),
    Sketcher.Constraint("Radius", 0, 4.0),
    Sketcher.Constraint("DistanceX", -1, 1, 0, 3, 12.0),
    Sketcher.Constraint("DistanceX", 2, 1, 2, 2, 0.75),
    Sketcher.Constraint("DistanceY", 1, 2, 1, 1, 3.035234),
])
sketch9.setExpression("Constraints[12]", "Params.sketch9_radius")
sketch9.setExpression("Constraints[14]", "Params.sketch9_width")
pad9 = body7.newObject("PartDesign::Pad", "Pad008")
pad9.Profile = sketch9
pad9.Type = "TwoLengths"
pad9.setExpression("Length", "Params.pad9_length")
pad9.setExpression("Length2", "Params.pad9_length2")
doc.recompute()

chamfer11 = body7.newObject("PartDesign::Chamfer", "Chamfer010")
chamfer11.Base = (pad9, edges_at(pad9, [(12, -7.018, -5)]))
chamfer11.ChamferType = "Two distances"
chamfer11.setExpression("Size", "Params.chamfer11_size")
chamfer11.setExpression("Size2", "Params.chamfer11_size2")
doc.recompute()

chamfer12 = body7.newObject("PartDesign::Chamfer", "Chamfer011")
chamfer12.Base = (chamfer11, edges_at(chamfer11, [(12, -7.018, 5)]))
chamfer12.ChamferType = "Two distances"
chamfer12.setExpression("Size", "Params.chamfer12_size")
chamfer12.setExpression("Size2", "Params.chamfer12_size2")
chamfer12.FlipDirection = True
body8 = doc.addObject("PartDesign::Body", "Body007")

# Sketch on XY plane
sketch10 = body8.newObject("Sketcher::SketchObject", "Sketch009")
sketch10.AttachmentSupport = (doc.getObject("XY_Plane007"), [""])
sketch10.MapMode = "FlatFace"
sketch10.addGeometry([
    Part.LineSegment(Vector(19.02, 0.38, 0), Vector(15.98, 0.38, 0)),  # 0
    Part.ArcOfCircle(Part.Circle(Vector(12, 0, 0), Vector(0, 0, 1), 4), math.radians(0), math.radians(5.38)),  # 1
    Part.ArcOfCircle(Part.Circle(Vector(12, 0, 0), Vector(0, 0, 1), 4), math.radians(-5.38), math.radians(0)),  # 2
    Part.LineSegment(Vector(15.98, -0.38, 0), Vector(19.02, -0.38, 0)),  # 3
    Part.LineSegment(Vector(19.02, -0.38, 0), Vector(19.02, 0.38, 0)),  # 4
], False)
sketch10.addConstraint([
    Sketcher.Constraint("Coincident", 0, 2, 1, 2),
    Sketcher.Constraint("Tangent", 1, 1, 2, 2),
    Sketcher.Constraint("Coincident", 2, 1, 3, 1),
    Sketcher.Constraint("Coincident", 3, 2, 4, 1),
    Sketcher.Constraint("Coincident", 4, 2, 0, 1),
    Sketcher.Constraint("Horizontal", 0),
    Sketcher.Constraint("Horizontal", 3),
    Sketcher.Constraint("Vertical", 4),
    Sketcher.Constraint("Equal", 1, 2),
    Sketcher.Constraint("Symmetric", 0, 2, 2, 1, -1),
    Sketcher.Constraint("PointOnObject", 1, 1, -1),
    Sketcher.Constraint("Radius", 1, 4.0),
    Sketcher.Constraint("DistanceX", -1, 1, 1, 3, 12.0),
    Sketcher.Constraint("DistanceY", 4, 1, 4, 2, 0.75),
    Sketcher.Constraint("DistanceX", 0, 2, 0, 1, 3.035234),
])
sketch10.setExpression("Constraints[11]", "Params.sketch10_radius")
sketch10.setExpression("Constraints[13]", "Params.sketch10_height")
pad10 = body8.newObject("PartDesign::Pad", "Pad009")
pad10.Profile = sketch10
pad10.Type = "TwoLengths"
pad10.setExpression("Length", "Params.pad10_length")
pad10.setExpression("Length2", "Params.pad10_length2")
doc.recompute()

chamfer13 = body8.newObject("PartDesign::Chamfer", "Chamfer012")
chamfer13.Base = (pad10, edges_at(pad10, [(19.018, 0, -5)]))
chamfer13.ChamferType = "Two distances"
chamfer13.setExpression("Size", "Params.chamfer13_size")
chamfer13.setExpression("Size2", "Params.chamfer13_size2")
doc.recompute()

chamfer14 = body8.newObject("PartDesign::Chamfer", "Chamfer013")
chamfer14.Base = (chamfer13, edges_at(chamfer13, [(19.018, 0, 5)]))
chamfer14.ChamferType = "Two distances"
chamfer14.setExpression("Size", "Params.chamfer14_size")
chamfer14.setExpression("Size2", "Params.chamfer14_size2")
chamfer14.FlipDirection = True
body9 = doc.addObject("PartDesign::Body", "Body008")

# Sketch on XY plane
sketch11 = body9.newObject("Sketcher::SketchObject", "Sketch010")
sketch11.AttachmentSupport = (doc.getObject("XY_Plane008"), [""])
sketch11.MapMode = "FlatFace"
sketch11.addGeometry([
    Part.LineSegment(Vector(11.6, 7, 0), Vector(11.6, 4, 0)),
    Part.ArcOfCircle(Part.Circle(Vector(12, 0, 0), Vector(0, 0, 1), 4), math.radians(84.62), math.radians(95.38)),
    Part.LineSegment(Vector(12.4, 4, 0), Vector(12.4, 7, 0)),
    Part.LineSegment(Vector(12.4, 7, 0), Vector(11.6, 7, 0)),
], False)
sketch11.addConstraint([
    Sketcher.Constraint("Coincident", 0, 2, 1, 2),
    Sketcher.Constraint("Coincident", 1, 1, 2, 1),
    Sketcher.Constraint("Coincident", 2, 2, 3, 1),
    Sketcher.Constraint("Coincident", 3, 2, 0, 1),
    Sketcher.Constraint("Vertical", 0),
    Sketcher.Constraint("Vertical", 2),
    Sketcher.Constraint("Horizontal", 3),
    Sketcher.Constraint("PointOnObject", 1, 3, -1),
    Sketcher.Constraint("Horizontal", 0, 2, 1, 1),
    Sketcher.Constraint("Radius", 1, 4.0),
    Sketcher.Constraint("DistanceX", -1, 1, 1, 3, 12.0),
    Sketcher.Constraint("DistanceX", 3, 2, 3, 1, 0.75),
    Sketcher.Constraint("DistanceY", 0, 2, 0, 1, 3.035234),
])
sketch11.setExpression("Constraints[9]", "Params.sketch11_radius")
sketch11.setExpression("Constraints[11]", "Params.sketch11_width")
pad11 = body9.newObject("PartDesign::Pad", "Pad010")
pad11.Profile = sketch11
pad11.Type = "TwoLengths"
pad11.setExpression("Length", "Params.pad11_length")
pad11.setExpression("Length2", "Params.pad11_length2")
doc.recompute()

chamfer15 = body9.newObject("PartDesign::Chamfer", "Chamfer014")
chamfer15.Base = (pad11, edges_at(pad11, [(12, 7.018, -5)]))
chamfer15.ChamferType = "Two distances"
chamfer15.setExpression("Size", "Params.chamfer15_size")
chamfer15.setExpression("Size2", "Params.chamfer15_size2")
doc.recompute()

chamfer16 = body9.newObject("PartDesign::Chamfer", "Chamfer015")
chamfer16.Base = (chamfer15, edges_at(chamfer15, [(12, 7.018, 5)]))
chamfer16.ChamferType = "Two distances"
chamfer16.setExpression("Size", "Params.chamfer16_size")
chamfer16.setExpression("Size2", "Params.chamfer16_size2")
chamfer16.FlipDirection = True

doc.recompute()
